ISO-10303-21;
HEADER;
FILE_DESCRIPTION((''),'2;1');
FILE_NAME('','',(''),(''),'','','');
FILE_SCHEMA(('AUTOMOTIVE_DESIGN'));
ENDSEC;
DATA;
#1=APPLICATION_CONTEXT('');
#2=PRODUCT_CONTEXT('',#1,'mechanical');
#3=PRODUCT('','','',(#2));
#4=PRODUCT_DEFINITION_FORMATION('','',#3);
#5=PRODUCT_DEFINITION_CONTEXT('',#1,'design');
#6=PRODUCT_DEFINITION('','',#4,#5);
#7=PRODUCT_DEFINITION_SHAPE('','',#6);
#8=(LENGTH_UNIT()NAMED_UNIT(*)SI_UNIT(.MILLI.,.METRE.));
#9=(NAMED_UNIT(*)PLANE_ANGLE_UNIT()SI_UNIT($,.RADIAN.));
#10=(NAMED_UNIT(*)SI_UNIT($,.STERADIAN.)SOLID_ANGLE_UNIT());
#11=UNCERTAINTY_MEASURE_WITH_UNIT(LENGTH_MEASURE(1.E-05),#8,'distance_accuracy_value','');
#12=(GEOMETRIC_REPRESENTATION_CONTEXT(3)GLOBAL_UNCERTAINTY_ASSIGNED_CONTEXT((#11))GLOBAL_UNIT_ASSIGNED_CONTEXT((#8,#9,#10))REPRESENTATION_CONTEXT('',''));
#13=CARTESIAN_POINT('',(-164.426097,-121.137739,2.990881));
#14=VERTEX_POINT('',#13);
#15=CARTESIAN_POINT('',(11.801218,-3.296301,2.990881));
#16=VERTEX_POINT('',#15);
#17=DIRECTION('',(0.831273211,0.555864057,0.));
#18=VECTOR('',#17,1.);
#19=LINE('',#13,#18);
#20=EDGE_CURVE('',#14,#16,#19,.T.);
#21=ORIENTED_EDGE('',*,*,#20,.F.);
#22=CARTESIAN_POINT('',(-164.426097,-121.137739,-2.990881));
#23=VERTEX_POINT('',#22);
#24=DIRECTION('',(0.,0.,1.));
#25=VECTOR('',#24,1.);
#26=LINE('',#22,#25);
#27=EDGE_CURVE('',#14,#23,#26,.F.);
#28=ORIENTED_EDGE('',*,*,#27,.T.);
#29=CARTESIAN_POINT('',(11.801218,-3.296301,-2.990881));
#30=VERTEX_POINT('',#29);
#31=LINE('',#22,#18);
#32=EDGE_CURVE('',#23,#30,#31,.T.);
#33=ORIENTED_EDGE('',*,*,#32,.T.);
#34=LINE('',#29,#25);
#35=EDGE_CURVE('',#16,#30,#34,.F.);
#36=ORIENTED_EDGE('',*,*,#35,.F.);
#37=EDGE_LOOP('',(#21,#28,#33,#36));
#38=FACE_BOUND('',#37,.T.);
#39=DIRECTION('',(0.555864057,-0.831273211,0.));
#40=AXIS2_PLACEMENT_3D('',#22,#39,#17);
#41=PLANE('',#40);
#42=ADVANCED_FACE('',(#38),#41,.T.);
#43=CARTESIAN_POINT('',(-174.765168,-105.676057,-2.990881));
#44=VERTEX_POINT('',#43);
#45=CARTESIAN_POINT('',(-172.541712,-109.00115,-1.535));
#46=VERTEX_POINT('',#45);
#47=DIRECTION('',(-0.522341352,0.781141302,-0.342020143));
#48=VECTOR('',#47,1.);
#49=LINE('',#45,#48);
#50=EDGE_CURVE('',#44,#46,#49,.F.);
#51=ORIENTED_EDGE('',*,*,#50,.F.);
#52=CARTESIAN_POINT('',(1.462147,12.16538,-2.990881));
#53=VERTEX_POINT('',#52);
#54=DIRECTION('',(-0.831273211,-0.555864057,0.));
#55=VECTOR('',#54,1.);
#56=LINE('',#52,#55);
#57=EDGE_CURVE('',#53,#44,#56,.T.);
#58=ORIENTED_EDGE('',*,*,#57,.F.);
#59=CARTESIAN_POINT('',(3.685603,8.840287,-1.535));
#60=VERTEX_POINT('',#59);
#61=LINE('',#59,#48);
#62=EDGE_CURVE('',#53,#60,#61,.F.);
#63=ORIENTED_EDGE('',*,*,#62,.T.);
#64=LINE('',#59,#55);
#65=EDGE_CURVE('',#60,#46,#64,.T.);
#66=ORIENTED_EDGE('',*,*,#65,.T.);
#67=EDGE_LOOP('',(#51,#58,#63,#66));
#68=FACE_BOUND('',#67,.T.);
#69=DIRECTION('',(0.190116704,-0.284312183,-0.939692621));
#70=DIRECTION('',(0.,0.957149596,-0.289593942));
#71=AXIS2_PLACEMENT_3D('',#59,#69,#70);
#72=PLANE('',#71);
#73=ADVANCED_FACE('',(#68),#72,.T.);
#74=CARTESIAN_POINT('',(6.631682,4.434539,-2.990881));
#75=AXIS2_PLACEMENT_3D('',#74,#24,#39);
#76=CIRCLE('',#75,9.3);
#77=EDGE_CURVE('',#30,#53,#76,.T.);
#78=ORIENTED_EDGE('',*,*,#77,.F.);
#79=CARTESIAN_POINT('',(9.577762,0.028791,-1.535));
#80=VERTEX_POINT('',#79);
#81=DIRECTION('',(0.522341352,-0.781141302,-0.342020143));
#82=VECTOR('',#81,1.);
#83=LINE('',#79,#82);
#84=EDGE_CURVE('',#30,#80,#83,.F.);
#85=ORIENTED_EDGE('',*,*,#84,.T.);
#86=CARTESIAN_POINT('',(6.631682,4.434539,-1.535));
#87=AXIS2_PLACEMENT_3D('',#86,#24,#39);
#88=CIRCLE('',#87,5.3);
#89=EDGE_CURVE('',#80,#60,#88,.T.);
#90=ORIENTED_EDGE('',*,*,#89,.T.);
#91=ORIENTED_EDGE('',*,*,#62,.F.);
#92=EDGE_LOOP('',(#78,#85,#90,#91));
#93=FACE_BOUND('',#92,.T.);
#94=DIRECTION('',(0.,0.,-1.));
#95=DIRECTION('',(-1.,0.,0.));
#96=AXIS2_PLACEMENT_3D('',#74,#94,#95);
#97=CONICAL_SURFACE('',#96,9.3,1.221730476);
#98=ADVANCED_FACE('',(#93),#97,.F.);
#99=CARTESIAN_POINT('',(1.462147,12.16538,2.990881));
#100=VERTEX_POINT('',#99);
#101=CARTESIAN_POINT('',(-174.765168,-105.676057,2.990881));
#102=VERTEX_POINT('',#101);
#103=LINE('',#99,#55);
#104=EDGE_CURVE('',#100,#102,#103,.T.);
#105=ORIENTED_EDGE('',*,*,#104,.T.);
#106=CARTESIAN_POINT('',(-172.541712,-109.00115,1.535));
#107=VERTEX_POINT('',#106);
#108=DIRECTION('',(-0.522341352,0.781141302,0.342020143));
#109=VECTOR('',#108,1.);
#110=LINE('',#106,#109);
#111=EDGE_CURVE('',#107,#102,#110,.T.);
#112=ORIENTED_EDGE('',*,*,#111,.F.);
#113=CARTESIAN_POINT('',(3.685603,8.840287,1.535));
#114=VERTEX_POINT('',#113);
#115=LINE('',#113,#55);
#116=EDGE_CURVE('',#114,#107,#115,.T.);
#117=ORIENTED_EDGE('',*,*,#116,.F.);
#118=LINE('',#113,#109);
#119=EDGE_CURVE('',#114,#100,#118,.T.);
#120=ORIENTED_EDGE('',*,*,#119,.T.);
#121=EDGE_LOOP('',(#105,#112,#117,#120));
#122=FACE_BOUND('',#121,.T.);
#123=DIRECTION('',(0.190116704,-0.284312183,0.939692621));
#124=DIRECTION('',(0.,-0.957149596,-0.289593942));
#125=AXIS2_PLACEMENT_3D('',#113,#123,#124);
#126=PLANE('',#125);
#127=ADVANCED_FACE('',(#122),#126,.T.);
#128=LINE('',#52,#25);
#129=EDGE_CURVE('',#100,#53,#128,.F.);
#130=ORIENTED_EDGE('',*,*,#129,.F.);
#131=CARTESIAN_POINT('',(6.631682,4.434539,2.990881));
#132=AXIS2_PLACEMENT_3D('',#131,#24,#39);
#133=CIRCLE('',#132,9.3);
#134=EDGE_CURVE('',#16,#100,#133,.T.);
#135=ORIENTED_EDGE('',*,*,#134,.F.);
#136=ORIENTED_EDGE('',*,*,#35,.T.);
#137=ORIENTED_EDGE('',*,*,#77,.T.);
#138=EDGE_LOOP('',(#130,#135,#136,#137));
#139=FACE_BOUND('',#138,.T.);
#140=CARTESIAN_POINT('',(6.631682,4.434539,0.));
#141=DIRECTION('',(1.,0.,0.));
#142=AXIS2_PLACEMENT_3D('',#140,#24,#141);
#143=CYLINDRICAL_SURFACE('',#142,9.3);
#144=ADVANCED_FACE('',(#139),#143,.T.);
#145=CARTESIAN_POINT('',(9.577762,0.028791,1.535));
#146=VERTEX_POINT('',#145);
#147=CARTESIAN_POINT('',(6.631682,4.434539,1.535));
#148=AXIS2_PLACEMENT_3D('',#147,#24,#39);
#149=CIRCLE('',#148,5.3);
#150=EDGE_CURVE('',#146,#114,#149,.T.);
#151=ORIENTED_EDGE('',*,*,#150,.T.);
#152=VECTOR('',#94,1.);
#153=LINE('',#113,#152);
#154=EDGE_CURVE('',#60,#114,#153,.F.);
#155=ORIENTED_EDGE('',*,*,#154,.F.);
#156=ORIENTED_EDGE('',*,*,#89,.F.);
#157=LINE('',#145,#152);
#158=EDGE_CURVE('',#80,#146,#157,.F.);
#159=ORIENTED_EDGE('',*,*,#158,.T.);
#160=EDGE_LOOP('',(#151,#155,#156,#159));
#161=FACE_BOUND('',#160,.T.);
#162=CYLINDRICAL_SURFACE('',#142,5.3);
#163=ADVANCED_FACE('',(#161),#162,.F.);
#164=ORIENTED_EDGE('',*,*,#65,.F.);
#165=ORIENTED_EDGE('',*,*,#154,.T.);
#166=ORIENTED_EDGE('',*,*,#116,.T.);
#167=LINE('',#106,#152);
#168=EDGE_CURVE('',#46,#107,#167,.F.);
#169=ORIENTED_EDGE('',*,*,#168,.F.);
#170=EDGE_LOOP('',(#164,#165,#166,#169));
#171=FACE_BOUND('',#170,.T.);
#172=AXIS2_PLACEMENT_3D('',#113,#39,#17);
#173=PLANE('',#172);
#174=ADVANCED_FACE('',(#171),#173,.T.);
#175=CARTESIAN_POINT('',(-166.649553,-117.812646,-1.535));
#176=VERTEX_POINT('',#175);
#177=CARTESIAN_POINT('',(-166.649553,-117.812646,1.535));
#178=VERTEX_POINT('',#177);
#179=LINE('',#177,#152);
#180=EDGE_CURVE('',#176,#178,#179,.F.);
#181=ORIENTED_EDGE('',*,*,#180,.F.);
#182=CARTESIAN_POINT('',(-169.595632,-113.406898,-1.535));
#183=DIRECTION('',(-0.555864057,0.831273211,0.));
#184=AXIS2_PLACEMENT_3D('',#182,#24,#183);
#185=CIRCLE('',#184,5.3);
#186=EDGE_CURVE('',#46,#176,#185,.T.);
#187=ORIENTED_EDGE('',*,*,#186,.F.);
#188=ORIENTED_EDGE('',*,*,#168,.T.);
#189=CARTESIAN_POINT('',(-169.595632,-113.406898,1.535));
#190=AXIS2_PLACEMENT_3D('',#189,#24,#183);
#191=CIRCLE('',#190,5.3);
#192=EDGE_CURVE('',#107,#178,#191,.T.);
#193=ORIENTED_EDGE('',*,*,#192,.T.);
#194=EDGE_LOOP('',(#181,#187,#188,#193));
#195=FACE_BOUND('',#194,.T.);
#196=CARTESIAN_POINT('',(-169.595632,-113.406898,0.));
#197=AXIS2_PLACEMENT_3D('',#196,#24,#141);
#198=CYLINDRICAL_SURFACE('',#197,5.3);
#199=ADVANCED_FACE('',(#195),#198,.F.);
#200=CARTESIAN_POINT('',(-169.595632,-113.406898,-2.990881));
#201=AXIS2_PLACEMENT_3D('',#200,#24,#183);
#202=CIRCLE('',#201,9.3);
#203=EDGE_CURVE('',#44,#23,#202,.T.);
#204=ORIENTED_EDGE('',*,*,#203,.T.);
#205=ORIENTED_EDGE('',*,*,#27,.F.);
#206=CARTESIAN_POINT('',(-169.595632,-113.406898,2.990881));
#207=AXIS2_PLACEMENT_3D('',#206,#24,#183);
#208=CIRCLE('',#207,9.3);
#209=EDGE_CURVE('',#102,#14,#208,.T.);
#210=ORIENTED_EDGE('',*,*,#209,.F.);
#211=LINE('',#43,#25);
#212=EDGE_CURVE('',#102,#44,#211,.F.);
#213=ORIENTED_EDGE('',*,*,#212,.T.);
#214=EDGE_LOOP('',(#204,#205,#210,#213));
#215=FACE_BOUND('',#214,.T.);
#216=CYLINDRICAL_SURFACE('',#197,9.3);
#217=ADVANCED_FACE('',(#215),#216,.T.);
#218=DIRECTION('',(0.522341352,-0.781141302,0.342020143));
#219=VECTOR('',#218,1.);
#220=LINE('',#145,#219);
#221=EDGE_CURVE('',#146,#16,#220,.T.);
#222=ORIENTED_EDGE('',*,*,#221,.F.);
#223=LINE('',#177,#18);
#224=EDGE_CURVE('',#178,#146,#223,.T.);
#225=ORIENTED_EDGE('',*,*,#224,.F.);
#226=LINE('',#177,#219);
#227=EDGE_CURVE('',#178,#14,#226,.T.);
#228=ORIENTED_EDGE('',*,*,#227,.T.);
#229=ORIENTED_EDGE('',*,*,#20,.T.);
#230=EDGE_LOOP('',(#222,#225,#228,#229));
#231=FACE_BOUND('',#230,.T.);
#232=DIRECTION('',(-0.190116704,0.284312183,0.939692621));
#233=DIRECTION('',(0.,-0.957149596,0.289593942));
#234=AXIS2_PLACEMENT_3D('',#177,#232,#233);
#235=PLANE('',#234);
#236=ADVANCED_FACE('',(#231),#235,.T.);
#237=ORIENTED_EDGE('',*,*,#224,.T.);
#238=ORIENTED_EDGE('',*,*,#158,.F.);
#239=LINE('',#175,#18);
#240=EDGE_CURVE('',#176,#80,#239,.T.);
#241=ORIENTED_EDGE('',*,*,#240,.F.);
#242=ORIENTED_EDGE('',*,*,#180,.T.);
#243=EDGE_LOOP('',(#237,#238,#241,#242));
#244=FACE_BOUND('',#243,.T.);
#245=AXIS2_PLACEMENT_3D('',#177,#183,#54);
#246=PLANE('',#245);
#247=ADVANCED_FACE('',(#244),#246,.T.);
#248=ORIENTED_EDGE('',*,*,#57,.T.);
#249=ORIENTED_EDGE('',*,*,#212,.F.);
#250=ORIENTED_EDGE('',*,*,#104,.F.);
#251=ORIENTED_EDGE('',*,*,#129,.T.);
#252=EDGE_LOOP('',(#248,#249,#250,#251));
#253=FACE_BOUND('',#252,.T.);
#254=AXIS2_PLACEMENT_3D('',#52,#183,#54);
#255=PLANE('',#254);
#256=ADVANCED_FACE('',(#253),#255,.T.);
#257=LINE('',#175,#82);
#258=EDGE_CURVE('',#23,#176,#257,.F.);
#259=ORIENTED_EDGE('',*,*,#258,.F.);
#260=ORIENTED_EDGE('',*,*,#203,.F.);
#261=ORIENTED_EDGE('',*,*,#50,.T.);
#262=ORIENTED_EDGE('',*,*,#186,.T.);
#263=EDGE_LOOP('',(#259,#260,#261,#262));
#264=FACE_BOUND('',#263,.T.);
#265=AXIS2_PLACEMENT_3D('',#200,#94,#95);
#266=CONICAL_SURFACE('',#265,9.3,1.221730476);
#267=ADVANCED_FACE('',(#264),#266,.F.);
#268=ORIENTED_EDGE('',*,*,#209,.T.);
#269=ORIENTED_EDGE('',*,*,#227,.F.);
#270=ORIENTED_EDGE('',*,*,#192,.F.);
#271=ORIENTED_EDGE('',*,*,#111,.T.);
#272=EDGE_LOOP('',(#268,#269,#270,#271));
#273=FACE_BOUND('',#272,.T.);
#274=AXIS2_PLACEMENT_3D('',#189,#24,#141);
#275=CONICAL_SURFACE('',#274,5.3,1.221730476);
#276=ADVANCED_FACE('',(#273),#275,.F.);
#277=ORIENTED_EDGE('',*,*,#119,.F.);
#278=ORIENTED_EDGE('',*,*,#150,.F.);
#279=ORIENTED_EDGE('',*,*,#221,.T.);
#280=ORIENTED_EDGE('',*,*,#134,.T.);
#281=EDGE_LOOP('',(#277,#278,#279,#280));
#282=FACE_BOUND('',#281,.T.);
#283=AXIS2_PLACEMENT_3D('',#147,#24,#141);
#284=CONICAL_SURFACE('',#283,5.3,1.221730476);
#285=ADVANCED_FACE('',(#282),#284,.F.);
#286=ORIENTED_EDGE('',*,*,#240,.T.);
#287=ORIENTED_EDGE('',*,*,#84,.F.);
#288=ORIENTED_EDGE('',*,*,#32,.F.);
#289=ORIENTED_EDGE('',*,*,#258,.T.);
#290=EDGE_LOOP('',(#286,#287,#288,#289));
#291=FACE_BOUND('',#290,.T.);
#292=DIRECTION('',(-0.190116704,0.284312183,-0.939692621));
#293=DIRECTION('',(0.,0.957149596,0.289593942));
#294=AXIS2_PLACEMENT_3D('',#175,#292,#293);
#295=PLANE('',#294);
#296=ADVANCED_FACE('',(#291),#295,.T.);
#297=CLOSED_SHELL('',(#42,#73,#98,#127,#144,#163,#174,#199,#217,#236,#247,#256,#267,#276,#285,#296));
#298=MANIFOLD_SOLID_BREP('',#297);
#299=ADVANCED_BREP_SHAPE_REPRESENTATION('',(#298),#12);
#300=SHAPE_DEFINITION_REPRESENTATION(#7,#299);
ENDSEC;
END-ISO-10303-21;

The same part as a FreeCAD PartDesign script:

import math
import FreeCAD as App
import Part
import Sketcher

V = App.Vector
Q = App.Units.Quantity


def add_polygon(sketch, points):
    """Adds a closed chain of lines whose ends are joined by coincident constraints."""
    first, n = sketch.GeometryCount, len(points)
    for a, b in zip(points, points[1:] + points[:1]):
        sketch.addGeometry(Part.LineSegment(App.Vector(*a, 0), App.Vector(*b, 0)), False)
    for i in range(n):
        sketch.addConstraint(Sketcher.Constraint("Coincident", first + i, 2, first + (i + 1) % n, 1))

doc = App.newDocument("Part")
body = doc.addObject("PartDesign::Body", "Body")

sketch1 = body.newObject("Sketcher::SketchObject", "Sketch")
sketch1.Placement = App.Placement(V(9.577762, 0.028791, 0), App.Rotation(V(0, 0, -1), V(0.555864057, -0.831273211, 0), V(-0.831273211, -0.555864057, 0), "ZXY"))
add_polygon(sketch1, [(1.535, -10.6), (-1.535, -10.6), (-2.990881, -14.6), (2.990881, -14.6)])
sketch1.addConstraint([
    Sketcher.Constraint("Horizontal", 0),
    Sketcher.Constraint("Horizontal", 2),
    Sketcher.Constraint("Equal", 1, 3),
    Sketcher.Constraint("Angle", 1, Q("-110 deg")),
    Sketcher.Constraint("DistanceY", 1, 2, 0, 2, 4.0),
    Sketcher.Constraint("DistanceX", 0, 2, 0, 1, 3.07),
    Sketcher.Constraint("DistanceY", 0, 2, -1, 1, 10.6),
    Sketcher.Constraint("DistanceX", 0, 2, -1, 1, 1.535),
])

sketch2 = body.newObject("Sketcher::SketchObject", "Sketch001")
sketch2.AttachmentSupport = (doc.getObject("XY_Plane"), [""])
sketch2.MapMode = "FlatFace"
sketch2.addGeometry([
    Part.LineSegment(V(9.577762, 0.028791, 0), V(-166.649553, -117.812646, 0)),
    Part.ArcOfCircle(Part.Circle(V(-169.595632, -113.406898, 0), V(0, 0, 1), 5.3), math.radians(123.77025), math.radians(303.770249)),
    Part.LineSegment(V(-172.541712, -109.00115, 0), V(3.685603, 8.840287, 0)),
    Part.ArcOfCircle(Part.Circle(V(6.631682, 4.434539, 0), V(0, 0, 1), 5.3), math.radians(-56.229751), math.radians(123.770249)),
], False)
sketch2.addConstraint([
    Sketcher.Constraint("Tangent", 0, 2, 1, 2),
    Sketcher.Constraint("Tangent", 1, 1, 2, 1),
    Sketcher.Constraint("Tangent", 2, 2, 3, 2),
    Sketcher.Constraint("Tangent", 3, 1, 0, 1),
    Sketcher.Constraint("Equal", 1, 3),
    Sketcher.Constraint("Radius", 1, 5.3),
    Sketcher.Constraint("DistanceY", 1, 3, -1, 1, 113.406898),
    Sketcher.Constraint("DistanceY", -1, 1, 3, 3, 4.434539),
    Sketcher.Constraint("DistanceX", 1, 1, -1, 1, 172.541712),
    Sketcher.Constraint("DistanceX", -1, 1, 3, 1, 9.577762),
])
doc.recompute()

additivepipe = body.newObject("PartDesign::AdditivePipe", "AdditivePipe")
additivepipe.Profile = sketch1
additivepipe.Spine = (sketch2, ["Edge1", "Edge2", "Edge3", "Edge4"])

doc.recompute()
